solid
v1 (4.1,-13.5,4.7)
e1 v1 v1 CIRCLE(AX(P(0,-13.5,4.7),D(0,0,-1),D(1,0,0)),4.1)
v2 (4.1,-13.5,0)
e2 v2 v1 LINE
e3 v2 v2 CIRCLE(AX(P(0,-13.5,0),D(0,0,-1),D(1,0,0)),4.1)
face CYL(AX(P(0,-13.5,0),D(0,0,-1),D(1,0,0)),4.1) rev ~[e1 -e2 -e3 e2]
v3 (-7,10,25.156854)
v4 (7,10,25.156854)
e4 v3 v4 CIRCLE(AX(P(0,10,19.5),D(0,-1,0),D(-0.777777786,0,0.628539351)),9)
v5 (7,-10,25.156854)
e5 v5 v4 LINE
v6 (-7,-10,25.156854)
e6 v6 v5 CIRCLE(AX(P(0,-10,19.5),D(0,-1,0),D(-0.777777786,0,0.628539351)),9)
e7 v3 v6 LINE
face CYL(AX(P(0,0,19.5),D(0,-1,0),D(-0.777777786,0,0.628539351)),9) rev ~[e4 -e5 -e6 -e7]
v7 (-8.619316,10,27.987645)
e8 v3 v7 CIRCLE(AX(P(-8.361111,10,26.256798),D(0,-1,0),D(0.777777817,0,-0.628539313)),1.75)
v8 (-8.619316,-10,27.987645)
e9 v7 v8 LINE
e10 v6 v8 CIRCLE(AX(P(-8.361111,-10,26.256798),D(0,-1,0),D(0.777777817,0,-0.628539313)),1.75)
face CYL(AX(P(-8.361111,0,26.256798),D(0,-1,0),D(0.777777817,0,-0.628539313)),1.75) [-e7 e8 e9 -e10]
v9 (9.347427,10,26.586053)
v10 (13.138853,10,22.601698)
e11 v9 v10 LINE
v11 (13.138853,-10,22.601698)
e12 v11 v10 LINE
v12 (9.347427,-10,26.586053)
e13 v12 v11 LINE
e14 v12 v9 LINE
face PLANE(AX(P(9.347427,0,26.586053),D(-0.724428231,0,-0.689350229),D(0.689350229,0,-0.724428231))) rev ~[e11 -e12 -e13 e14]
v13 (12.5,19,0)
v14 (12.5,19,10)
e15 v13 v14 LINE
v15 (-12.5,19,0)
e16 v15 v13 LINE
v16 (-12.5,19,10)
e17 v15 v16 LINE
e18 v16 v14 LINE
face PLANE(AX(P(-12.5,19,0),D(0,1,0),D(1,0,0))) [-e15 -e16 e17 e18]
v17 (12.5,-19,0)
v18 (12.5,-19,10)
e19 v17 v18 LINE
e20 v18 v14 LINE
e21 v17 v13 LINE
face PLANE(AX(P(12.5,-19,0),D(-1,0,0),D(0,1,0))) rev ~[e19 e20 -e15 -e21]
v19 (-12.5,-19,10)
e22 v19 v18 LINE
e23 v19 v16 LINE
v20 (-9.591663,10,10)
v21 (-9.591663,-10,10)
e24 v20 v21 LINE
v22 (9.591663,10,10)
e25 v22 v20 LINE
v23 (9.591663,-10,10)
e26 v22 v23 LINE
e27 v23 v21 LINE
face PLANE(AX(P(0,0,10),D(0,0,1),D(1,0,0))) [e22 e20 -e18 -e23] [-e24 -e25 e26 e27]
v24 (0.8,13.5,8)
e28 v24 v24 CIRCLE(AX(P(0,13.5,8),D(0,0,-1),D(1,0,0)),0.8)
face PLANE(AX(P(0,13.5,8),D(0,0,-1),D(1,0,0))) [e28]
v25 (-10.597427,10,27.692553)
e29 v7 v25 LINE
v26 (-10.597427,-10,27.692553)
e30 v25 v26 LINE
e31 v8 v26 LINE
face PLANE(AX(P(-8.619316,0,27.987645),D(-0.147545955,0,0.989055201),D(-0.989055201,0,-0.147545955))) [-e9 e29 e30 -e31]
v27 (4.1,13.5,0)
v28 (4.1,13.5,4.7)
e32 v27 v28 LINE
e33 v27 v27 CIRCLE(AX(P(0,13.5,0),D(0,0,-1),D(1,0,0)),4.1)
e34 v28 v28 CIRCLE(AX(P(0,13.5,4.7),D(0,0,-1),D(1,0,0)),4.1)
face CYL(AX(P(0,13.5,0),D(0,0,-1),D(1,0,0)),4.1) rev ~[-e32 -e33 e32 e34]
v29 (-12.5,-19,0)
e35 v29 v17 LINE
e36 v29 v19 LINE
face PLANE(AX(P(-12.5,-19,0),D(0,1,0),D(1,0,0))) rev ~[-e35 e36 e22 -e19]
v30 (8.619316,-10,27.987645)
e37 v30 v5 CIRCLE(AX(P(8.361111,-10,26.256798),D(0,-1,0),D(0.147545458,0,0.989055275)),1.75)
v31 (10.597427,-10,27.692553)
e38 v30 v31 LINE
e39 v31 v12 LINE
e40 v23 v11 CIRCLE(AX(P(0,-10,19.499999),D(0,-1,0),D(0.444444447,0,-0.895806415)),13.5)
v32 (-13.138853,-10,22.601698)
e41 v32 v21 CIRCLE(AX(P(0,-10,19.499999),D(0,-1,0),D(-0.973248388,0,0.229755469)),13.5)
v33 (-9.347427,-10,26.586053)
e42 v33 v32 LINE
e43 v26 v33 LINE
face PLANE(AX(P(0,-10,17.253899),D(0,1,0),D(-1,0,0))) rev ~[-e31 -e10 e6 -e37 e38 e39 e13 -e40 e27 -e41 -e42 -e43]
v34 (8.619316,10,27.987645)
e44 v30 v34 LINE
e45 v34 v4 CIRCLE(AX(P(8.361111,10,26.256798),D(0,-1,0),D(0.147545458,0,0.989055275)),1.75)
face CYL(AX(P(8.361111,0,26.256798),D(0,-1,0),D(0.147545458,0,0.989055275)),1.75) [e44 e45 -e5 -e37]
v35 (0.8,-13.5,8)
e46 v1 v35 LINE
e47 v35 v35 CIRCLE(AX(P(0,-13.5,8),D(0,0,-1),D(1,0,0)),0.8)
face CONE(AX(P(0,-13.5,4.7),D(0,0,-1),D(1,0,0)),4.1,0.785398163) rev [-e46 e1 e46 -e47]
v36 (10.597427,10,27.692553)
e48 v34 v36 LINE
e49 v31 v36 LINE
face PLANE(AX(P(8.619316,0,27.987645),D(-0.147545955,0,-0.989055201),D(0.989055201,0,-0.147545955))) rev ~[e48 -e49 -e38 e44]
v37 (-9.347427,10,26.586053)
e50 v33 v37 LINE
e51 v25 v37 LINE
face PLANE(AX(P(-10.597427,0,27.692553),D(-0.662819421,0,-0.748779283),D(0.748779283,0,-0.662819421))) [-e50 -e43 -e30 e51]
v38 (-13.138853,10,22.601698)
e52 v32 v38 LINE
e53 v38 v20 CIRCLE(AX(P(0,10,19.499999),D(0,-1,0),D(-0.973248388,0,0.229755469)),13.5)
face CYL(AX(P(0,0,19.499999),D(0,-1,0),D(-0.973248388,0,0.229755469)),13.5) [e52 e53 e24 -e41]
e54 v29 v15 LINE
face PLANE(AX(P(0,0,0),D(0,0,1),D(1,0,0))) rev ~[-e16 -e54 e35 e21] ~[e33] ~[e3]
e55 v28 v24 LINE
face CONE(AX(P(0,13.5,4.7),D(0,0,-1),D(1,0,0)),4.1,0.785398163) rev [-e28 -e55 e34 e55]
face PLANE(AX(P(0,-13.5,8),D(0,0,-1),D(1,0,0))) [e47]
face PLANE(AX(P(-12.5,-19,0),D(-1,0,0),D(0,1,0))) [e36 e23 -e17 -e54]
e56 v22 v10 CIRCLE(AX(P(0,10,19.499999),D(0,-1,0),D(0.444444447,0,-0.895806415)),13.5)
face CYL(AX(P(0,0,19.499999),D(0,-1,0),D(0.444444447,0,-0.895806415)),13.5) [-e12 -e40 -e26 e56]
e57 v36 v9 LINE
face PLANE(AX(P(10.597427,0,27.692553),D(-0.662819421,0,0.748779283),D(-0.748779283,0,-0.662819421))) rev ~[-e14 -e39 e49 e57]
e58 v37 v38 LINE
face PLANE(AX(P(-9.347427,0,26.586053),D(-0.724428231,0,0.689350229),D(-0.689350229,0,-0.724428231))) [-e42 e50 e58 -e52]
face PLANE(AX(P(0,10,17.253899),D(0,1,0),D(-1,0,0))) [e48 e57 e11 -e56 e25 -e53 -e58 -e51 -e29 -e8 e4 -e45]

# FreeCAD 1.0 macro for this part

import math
import FreeCAD as App
import Part
import Sketcher
from FreeCAD import Vector
Q = App.Units.Quantity


def edges_at(feature, points):
    """Names of the edges that pass closest to the given points."""
    edges = feature.Shape.Edges
    near = lambda p: min(range(len(edges)), key=lambda i: edges[i].distToShape(Part.Vertex(*p))[0])
    return sorted({f"Edge{near(p) + 1}" for p in points})


def add_polygon(sketch, points):
    """Adds a closed chain of lines whose ends are joined by coincident constraints."""
    first, n = sketch.GeometryCount, len(points)
    for a, b in zip(points, points[1:] + points[:1]):
        sketch.addGeometry(Part.LineSegment(App.Vector(*a, 0), App.Vector(*b, 0)), False)
    for i in range(n):
        sketch.addConstraint(Sketcher.Constraint("Coincident", first + i, 2, first + (i + 1) % n, 1))

doc = App.newDocument("Part")
params = doc.addObject("Spreadsheet::Sheet", "Params")
for row, (alias, value) in enumerate([
    ("sketch1_width", "25 mm"),
    ("sketch1_height", "38 mm"),
    ("pad1_length", "10 mm"),
    ("sketch2_diameter", "8.2 mm"),
    ("pocket1_length", "8 mm"),
    ("chamfer_size", "3.3 mm"),
    ("sketch3_radius", "9 mm"),
    ("sketch3_radius2", "13.5 mm"),
    ("sketch3_width", "12 mm"),
    ("sketch3_radius3", "1.75 mm"),
    ("sketch3_length", "2.000001 mm"),
    ("pad2_length", "20 mm"),
], start=1):
    params.set(f"A{row}", alias)
    params.set(f"B{row}", "=" + value)
    params.setAlias(f"B{row}", alias)

body = doc.addObject("PartDesign::Body", "Body")

# Sketch on XY plane
sketch1 = doc.addObject("Sketcher::SketchObject", "Sketch")
body.addObject(sketch1)
sketch1.AttachmentSupport = (doc.XY_Plane, [""])
sketch1.MapMode = "FlatFace"
add_polygon(sketch1, [(-12.5, 19), (-12.5, -19), (12.5, -19), (12.5, 19)])  # lines 0-3
sketch1.addConstraint(Sketcher.Constraint("Vertical", 0))
sketch1.addConstraint(Sketcher.Constraint("Horizontal", 1))
sketch1.addConstraint(Sketcher.Constraint("Vertical", 2))
sketch1.addConstraint(Sketcher.Constraint("Horizontal", 3))
sketch1.addConstraint(Sketcher.Constraint("Symmetric", 0, 2, 2, 2, -1, 1))
sketch1.addConstraint(Sketcher.Constraint("DistanceX", 1, 1, 1, 2, Q("25 mm")))
sketch1.addConstraint(Sketcher.Constraint("DistanceY", 0, 2, 0, 1, Q("38 mm")))
sketch1.setExpression("Constraints[9]", "Params.sketch1_width")
sketch1.setExpression("Constraints[10]", "Params.sketch1_height")
pad1 = doc.addObject("PartDesign::Pad", "Pad")
body.addObject(pad1)
pad1.Profile = sketch1
pad1.setExpression("Length", "Params.pad1_length")

# Sketch on XY plane
sketch2 = doc.addObject("Sketcher::SketchObject", "Sketch001")
body.addObject(sketch2)
sketch2.AttachmentSupport = (doc.XY_Plane, [""])
sketch2.MapMode = "FlatFace"
sketch2.addGeometry(Part.Circle(Vector(0, -13.5, 0), Vector(0, 0, 1), 4.1), False)
sketch2.addGeometry(Part.Circle(Vector(0, 13.5, 0), Vector(0, 0, 1), 4.1), False)
sketch2.addConstraint(Sketcher.Constraint("Equal", 0, 1))
sketch2.addConstraint(Sketcher.Constraint("Symmetric", 0, 3, 1, 3, -1, 1))
sketch2.addConstraint(Sketcher.Constraint("PointOnObject", 0, 3, -2))
sketch2.addConstraint(Sketcher.Constraint("Diameter", 0, Q("8.2 mm")))
sketch2.addConstraint(Sketcher.Constraint("DistanceY", 0, 3, 1, 3, Q("27 mm")))
sketch2.setExpression("Constraints[3]", "Params.sketch2_diameter")
pocket1 = doc.addObject("PartDesign::Pocket", "Pocket")
body.addObject(pocket1)
pocket1.Profile = sketch2
pocket1.setExpression("Length", "Params.pocket1_length")
pocket1.Reversed = True
doc.recompute()

chamfer = doc.addObject("PartDesign::Chamfer", "Chamfer")
body.addObject(chamfer)
chamfer.Base = (pocket1, edges_at(pocket1, [(-4.1, 13.5, 8), (-4.1, -13.5, 8)]))
chamfer.setExpression("Size", "Params.chamfer_size")

# Sketch on XZ plane
sketch3 = doc.addObject("Sketcher::SketchObject", "Sketch002")
body.addObject(sketch3)
sketch3.AttachmentSupport = (doc.XZ_Plane, [""])
sketch3.MapMode = "FlatFace"
sketch3.addGeometry(Part.ArcOfCircle(Part.Circle(Vector(0, 19.5, 0), Vector(0, 0, 1), 9), math.radians(141.057559), math.radians(398.942441)), False)
sketch3.addGeometry(Part.ArcOfCircle(Part.Circle(Vector(-8.361111, 26.256798, 0), Vector(0, 0, 1), 1.75), math.radians(-38.942438), math.radians(98.484709)), False)
sketch3.addGeometry(Part.LineSegment(Vector(-8.619316, 27.987645, 0), Vector(-10.597427, 27.692553, 0)), False)
sketch3.addGeometry(Part.LineSegment(Vector(-10.597427, 27.692553, 0), Vector(-9.347427, 26.586053, 0)), False)
sketch3.addGeometry(Part.LineSegment(Vector(-9.347427, 26.586053, 0), Vector(-13.138853, 22.601698, 0)), False)
sketch3.addGeometry(Part.ArcOfCircle(Part.Circle(Vector(0, 19.499999, 0), Vector(0, 0, 1), 13.5), math.radians(166.717324), math.radians(243.6122)), False)
sketch3.addGeometry(Part.LineSegment(Vector(-6, 7.406613, 0), Vector(6, 7.406613, 0)), False)
sketch3.addGeometry(Part.ArcOfCircle(Part.Circle(Vector(0, 19.499999, 0), Vector(0, 0, 1), 13.5), math.radians(-63.6122), math.radians(13.282676)), False)
sketch3.addGeometry(Part.LineSegment(Vector(13.138853, 22.601698, 0), Vector(9.347427, 26.586053, 0)), False)
sketch3.addGeometry(Part.LineSegment(Vector(9.347427, 26.586053, 0), Vector(10.597427, 27.692553, 0)), False)
sketch3.addGeometry(Part.LineSegment(Vector(10.597427, 27.692553, 0), Vector(8.619316, 27.987645, 0)), False)
sketch3.addGeometry(Part.ArcOfCircle(Part.Circle(Vector(8.361111, 26.256798, 0), Vector(0, 0, 1), 1.75), math.radians(81.515291), math.radians(218.942438)), False)
sketch3.addConstraint(Sketcher.Constraint("Tangent", 0, 1, 1, 1))
sketch3.addConstraint(Sketcher.Constraint("Tangent", 1, 2, 2, 1))
sketch3.addConstraint(Sketcher.Constraint("Coincident", 2, 2, 3, 1))
sketch3.addConstraint(Sketcher.Constraint("Coincident", 3, 2, 4, 1))
sketch3.addConstraint(Sketcher.Constraint("Coincident", 4, 2, 5, 1))
sketch3.addConstraint(Sketcher.Constraint("Coincident", 5, 2, 6, 1))
sketch3.addConstraint(Sketcher.Constraint("Coincident", 6, 2, 7, 1))
sketch3.addConstraint(Sketcher.Constraint("Coincident", 7, 2, 8, 1))
sketch3.addConstraint(Sketcher.Constraint("Coincident", 8, 2, 9, 1))
sketch3.addConstraint(Sketcher.Constraint("Coincident", 9, 2, 10, 1))
sketch3.addConstraint(Sketcher.Constraint("Tangent", 10, 2, 11, 1))
sketch3.addConstraint(Sketcher.Constraint("Tangent", 11, 2, 0, 2))
sketch3.addConstraint(Sketcher.Constraint("Horizontal", 6))
sketch3.addConstraint(Sketcher.Constraint("Coincident", 5, 3, 0, 3))
sketch3.addConstraint(Sketcher.Constraint("Coincident", 7, 3, 0, 3))
sketch3.addConstraint(Sketcher.Constraint("Equal", 5, 7))
sketch3.addConstraint(Sketcher.Constraint("Equal", 1, 11))
sketch3.addConstraint(Sketcher.Constraint("Symmetric", 1, 3, 11, 3, -2))
sketch3.addConstraint(Sketcher.Constraint("Symmetric", 3, 2, 8, 2, -2))
sketch3.addConstraint(Sketcher.Constraint("Symmetric", 2, 2, 9, 2, -2))
sketch3.addConstraint(Sketcher.Constraint("Horizontal", 4, 2, 7, 2))
sketch3.addConstraint(Sketcher.Constraint("Radius", 0, Q("9 mm")))
sketch3.addConstraint(Sketcher.Constraint("Radius", 5, Q("13.5 mm")))
sketch3.addConstraint(Sketcher.Constraint("DistanceX", 6, 1, 6, 2, Q("12 mm")))
sketch3.addConstraint(Sketcher.Constraint("Radius", 1, Q("1.75 mm")))
sketch3.addConstraint(Sketcher.Constraint("Distance", 2, Q("2.000001 mm")))
sketch3.addConstraint(Sketcher.Constraint("DistanceX", 0, 1, -1, 1, Q("7 mm")))
sketch3.addConstraint(Sketcher.Constraint("Distance", 4, Q("5.5 mm")))
sketch3.addConstraint(Sketcher.Constraint("DistanceY", -1, 1, 0, 3, Q("19.5 mm")))
sketch3.addConstraint(Sketcher.Constraint("DistanceX", 2, 2, 3, 2, Q("1.25 mm")))
sketch3.addConstraint(Sketcher.Constraint("DistanceY", 0, 1, 2, 2, Q("2.535699 mm")))
sketch3.addConstraint(Sketcher.Constraint("DistanceY", 3, 2, 2, 2, Q("1.1065 mm")))
sketch3.setExpression("Constraints[21]", "Params.sketch3_radius")
sketch3.setExpression("Constraints[22]", "Params.sketch3_radius2")
sketch3.setExpression("Constraints[23]", "Params.sketch3_width")
sketch3.setExpression("Constraints[24]", "Params.sketch3_radius3")
sketch3.setExpression("Constraints[25]", "Params.sketch3_length")
pad2 = doc.addObject("PartDesign::Pad", "Pad001")
body.addObject(pad2)
pad2.Profile = sketch3
pad2.setExpression("Length", "Params.pad2_length")
pad2.Midplane = True

doc.recompute()
